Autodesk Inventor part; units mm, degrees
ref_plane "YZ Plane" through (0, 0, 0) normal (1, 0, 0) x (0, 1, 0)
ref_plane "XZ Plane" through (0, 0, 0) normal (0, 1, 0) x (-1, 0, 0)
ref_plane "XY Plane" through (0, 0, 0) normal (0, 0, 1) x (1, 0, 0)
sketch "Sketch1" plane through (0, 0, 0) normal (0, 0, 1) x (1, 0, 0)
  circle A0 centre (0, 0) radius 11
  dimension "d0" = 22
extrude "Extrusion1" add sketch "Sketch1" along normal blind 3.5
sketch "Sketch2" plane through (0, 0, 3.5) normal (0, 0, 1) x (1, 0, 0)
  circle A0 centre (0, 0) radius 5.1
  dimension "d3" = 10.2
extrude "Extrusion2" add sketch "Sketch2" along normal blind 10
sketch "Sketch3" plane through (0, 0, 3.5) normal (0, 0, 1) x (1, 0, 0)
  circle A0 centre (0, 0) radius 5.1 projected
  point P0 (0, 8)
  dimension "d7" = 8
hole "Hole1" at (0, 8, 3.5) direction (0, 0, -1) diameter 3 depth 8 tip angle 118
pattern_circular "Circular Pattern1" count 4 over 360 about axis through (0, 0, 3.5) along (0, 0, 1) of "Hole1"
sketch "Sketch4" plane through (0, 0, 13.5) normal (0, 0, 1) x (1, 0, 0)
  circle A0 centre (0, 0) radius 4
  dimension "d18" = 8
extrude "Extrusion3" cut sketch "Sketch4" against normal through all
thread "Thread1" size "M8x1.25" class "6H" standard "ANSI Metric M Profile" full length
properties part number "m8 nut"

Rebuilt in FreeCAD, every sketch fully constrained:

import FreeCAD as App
import Part
import Sketcher
from FreeCAD import Vector
Q = App.Units.Quantity

doc = App.newDocument("Part")
body = doc.addObject("PartDesign::Body", "Body")

# Sketch on XY plane
sketch1 = doc.addObject("Sketcher::SketchObject", "Sketch")
body.addObject(sketch1)
sketch1.AttachmentSupport = (doc.XY_Plane, [""])
sketch1.MapMode = "FlatFace"
sketch1.addGeometry(Part.Circle(Vector(0, 0, 0), Vector(0, 0, 1), 11), False)
sketch1.addConstraint([
    Sketcher.Constraint("Coincident", 0, 3, -1, 1),
    Sketcher.Constraint("Diameter", 0, Q("22 mm")),
])
pad1 = doc.addObject("PartDesign::Pad", "Pad")
body.addObject(pad1)
pad1.Profile = sketch1
pad1.Length = 3.5

# Sketch on XY plane
sketch2 = doc.addObject("Sketcher::SketchObject", "Sketch001")
body.addObject(sketch2)
sketch2.AttachmentSupport = (doc.XY_Plane, [""])
sketch2.MapMode = "FlatFace"
sketch2.AttachmentOffset = App.Placement(Vector(0, 0, 3.5), App.Rotation())
sketch2.addGeometry(Part.Circle(Vector(0, 0, 0), Vector(0, 0, 1), 5), False)
sketch2.addConstraint([
    Sketcher.Constraint("Coincident", 0, 3, -1, 1),
    Sketcher.Constraint("Diameter", 0, Q("10.2 mm")),
])
pad2 = doc.addObject("PartDesign::Pad", "Pad001")
body.addObject(pad2)
pad2.Profile = sketch2
pad2.Length = 10

# Sketch on XY plane
sketch3 = doc.addObject("Sketcher::SketchObject", "Sketch002")
body.addObject(sketch3)
sketch3.AttachmentSupport = (doc.XY_Plane, [""])
sketch3.MapMode = "FlatFace"
sketch3.AttachmentOffset = App.Placement(Vector(0, 0, 3.5), App.Rotation())
sketch3.addGeometry(Part.Circle(Vector(0, 8, 0), Vector(0, 0, 1), 1.5), False)
sketch3.addConstraint([
    Sketcher.Constraint("PointOnObject", 0, 3, -2),
    Sketcher.Constraint("Diameter", 0, Q("3 mm")),
    Sketcher.Constraint("DistanceY", -1, 1, 0, 3, Q("8 mm")),
])
doc.recompute()
hole = doc.addObject("PartDesign::Hole", "Hole")
body.addObject(hole)
hole.Profile = sketch3
hole.ThreadType = "None"
hole.Diameter = 3
hole.DepthType = "Dimension"
hole.Depth = 8
hole.DrillPoint = "Angled"
hole.DrillPointAngle = 118
doc.recompute()

polarpattern = doc.addObject("PartDesign::PolarPattern", "PolarPattern")
body.addObject(polarpattern)
polarpattern.Originals = [hole]
polarpattern.Axis = (doc.Z_Axis, [""])
polarpattern.Angle = 360
polarpattern.Occurrences = 4
body.Tip = polarpattern

# Sketch on XY plane
sketch4 = doc.addObject("Sketcher::SketchObject", "Sketch003")
body.addObject(sketch4)
sketch4.AttachmentSupport = (doc.XY_Plane, [""])
sketch4.MapMode = "FlatFace"
sketch4.AttachmentOffset = App.Placement(Vector(0, 0, 13.5), App.Rotation())
sketch4.addGeometry(Part.Circle(Vector(0, 0, 0), Vector(0, 0, 1), 4), False)
sketch4.addConstraint([
    Sketcher.Constraint("Coincident", 0, 3, -1, 1),
    Sketcher.Constraint("Diameter", 0, Q("8 mm")),
])
pocket1 = doc.addObject("PartDesign::Pocket", "Pocket")
body.addObject(pocket1)
pocket1.Profile = sketch4
pocket1.Type = "ThroughAll"

doc.recompute()
